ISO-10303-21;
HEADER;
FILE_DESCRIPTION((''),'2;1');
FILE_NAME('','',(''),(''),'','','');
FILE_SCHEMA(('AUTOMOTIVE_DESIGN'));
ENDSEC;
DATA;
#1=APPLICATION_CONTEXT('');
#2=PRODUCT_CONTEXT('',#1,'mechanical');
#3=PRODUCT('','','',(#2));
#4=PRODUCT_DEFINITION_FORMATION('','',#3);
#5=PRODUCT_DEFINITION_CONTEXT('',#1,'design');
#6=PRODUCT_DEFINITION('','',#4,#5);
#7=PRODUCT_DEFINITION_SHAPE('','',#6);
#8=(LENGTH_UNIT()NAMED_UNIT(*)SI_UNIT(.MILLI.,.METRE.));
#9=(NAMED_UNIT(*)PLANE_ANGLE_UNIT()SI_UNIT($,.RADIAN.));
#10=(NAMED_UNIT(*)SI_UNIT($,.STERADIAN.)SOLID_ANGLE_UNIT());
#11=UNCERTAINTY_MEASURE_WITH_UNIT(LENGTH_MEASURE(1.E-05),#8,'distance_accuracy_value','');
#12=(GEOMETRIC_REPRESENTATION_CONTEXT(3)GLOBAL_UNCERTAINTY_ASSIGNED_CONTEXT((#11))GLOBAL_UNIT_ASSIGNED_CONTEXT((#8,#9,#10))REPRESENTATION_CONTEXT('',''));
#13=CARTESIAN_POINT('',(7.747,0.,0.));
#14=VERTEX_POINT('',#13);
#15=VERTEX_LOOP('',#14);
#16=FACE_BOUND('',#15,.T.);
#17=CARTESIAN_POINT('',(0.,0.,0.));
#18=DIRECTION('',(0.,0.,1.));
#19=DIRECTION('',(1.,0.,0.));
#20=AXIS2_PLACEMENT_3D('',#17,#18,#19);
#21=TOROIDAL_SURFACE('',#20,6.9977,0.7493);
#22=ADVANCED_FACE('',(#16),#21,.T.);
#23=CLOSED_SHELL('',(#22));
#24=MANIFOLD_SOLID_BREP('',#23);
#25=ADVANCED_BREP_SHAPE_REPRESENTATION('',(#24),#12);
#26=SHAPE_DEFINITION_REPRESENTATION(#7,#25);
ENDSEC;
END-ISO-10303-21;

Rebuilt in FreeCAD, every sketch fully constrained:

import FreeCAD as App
import Part
import Sketcher
from FreeCAD import Vector
Q = App.Units.Quantity

doc = App.newDocument("Part")
body = doc.addObject("PartDesign::Body", "Body")

sketch1 = body.newObject("Sketcher::SketchObject", "Sketch")
sketch1.AttachmentSupport = (doc.getObject("YZ_Plane"), [""])
sketch1.MapMode = "FlatFace"
sketch1.addGeometry(Part.Circle(Vector(6.9977, 0, 0), Vector(0, 0, 1), 0.7493), False)
sketch1.addConstraint([
    Sketcher.Constraint("PointOnObject", 0, 3, -1),
    Sketcher.Constraint("Diameter", 0, Q("0.059 in")),
    Sketcher.Constraint("DistanceX", -1, 1, 0, 3, Q("0.2755 in")),
])
revolution = body.newObject("PartDesign::Revolution", "Revolution")
revolution.Profile = sketch1
revolution.ReferenceAxis = (sketch1, ["V_Axis"])
revolution.Angle = 360

doc.recompute()
